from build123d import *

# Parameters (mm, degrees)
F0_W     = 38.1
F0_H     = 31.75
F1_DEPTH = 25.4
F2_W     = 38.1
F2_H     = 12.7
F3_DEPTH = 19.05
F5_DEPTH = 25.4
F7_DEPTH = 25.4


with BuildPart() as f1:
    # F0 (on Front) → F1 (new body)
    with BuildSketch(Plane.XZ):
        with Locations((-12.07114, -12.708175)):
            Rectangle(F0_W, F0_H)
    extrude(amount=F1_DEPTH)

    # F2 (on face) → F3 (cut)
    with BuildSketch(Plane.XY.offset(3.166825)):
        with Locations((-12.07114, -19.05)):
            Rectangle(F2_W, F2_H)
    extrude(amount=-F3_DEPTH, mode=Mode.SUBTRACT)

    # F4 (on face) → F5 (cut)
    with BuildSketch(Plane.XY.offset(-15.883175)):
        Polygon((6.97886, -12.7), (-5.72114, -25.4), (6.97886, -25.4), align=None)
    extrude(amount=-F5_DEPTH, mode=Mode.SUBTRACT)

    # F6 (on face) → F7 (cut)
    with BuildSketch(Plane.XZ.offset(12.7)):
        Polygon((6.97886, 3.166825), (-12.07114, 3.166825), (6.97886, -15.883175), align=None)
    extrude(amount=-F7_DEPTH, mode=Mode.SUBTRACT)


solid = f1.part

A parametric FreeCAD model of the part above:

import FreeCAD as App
import Part
import Sketcher
Q = App.Units.Quantity

doc = App.newDocument("Part")
body = doc.addObject("PartDesign::Body", "Body")

# Sketch on XZ plane
sketch1 = body.newObject("Sketcher::SketchObject", "Sketch")
sketch1.AttachmentSupport = (doc.getObject("XZ_Plane"), [""])
sketch1.MapMode = "FlatFace"
sketch1.addGeometry(Part.LineSegment(App.Vector(-31, 3, 0), App.Vector(-31, -29, 0)), False)
sketch1.addGeometry(Part.LineSegment(App.Vector(-31, -29, 0), App.Vector(7, -29, 0)), False)
sketch1.addGeometry(Part.LineSegment(App.Vector(7, -29, 0), App.Vector(7, 3, 0)), False)
sketch1.addGeometry(Part.LineSegment(App.Vector(7, 3, 0), App.Vector(-31, 3, 0)), False)
sketch1.addConstraint(Sketcher.Constraint("Coincident", 0, 2, 1, 1))
sketch1.addConstraint(Sketcher.Constraint("Coincident", 1, 2, 2, 1))
sketch1.addConstraint(Sketcher.Constraint("Coincident", 2, 2, 3, 1))
sketch1.addConstraint(Sketcher.Constraint("Coincident", 3, 2, 0, 1))
sketch1.addConstraint(Sketcher.Constraint("Vertical", 0))
sketch1.addConstraint(Sketcher.Constraint("Horizontal", 1))
sketch1.addConstraint(Sketcher.Constraint("Vertical", 2))
sketch1.addConstraint(Sketcher.Constraint("Horizontal", 3))
sketch1.addConstraint(Sketcher.Constraint("DistanceX", 1, 1, 1, 2, Q("1.5 in")))
sketch1.addConstraint(Sketcher.Constraint("DistanceY", 0, 2, 0, 1, Q("1.25 in")))
sketch1.addConstraint(Sketcher.Constraint("DistanceX", 0, 2, -1, 1, 31.12114))
sketch1.addConstraint(Sketcher.Constraint("DistanceY", 0, 2, -1, 1, 28.583175))
pad1 = body.newObject("PartDesign::Pad", "Pad")
pad1.Profile = sketch1
pad1.Length = Q("1 in")

# Sketch on XY plane
sketch2 = body.newObject("Sketcher::SketchObject", "Sketch001")
sketch2.AttachmentSupport = (doc.getObject("XY_Plane"), [""])
sketch2.MapMode = "FlatFace"
sketch2.AttachmentOffset = App.Placement(App.Vector(0, 0, 3.166825), App.Rotation())
sketch2.addGeometry(Part.LineSegment(App.Vector(-31, -13, 0), App.Vector(-31, -25, 0)), False)
sketch2.addGeometry(Part.LineSegment(App.Vector(-31, -25, 0), App.Vector(7, -25, 0)), False)
sketch2.addGeometry(Part.LineSegment(App.Vector(7, -25, 0), App.Vector(7, -13, 0)), False)
sketch2.addGeometry(Part.LineSegment(App.Vector(7, -13, 0), App.Vector(-31, -13, 0)), False)
sketch2.addConstraint(Sketcher.Constraint("Coincident", 0, 2, 1, 1))
sketch2.addConstraint(Sketcher.Constraint("Coincident", 1, 2, 2, 1))
sketch2.addConstraint(Sketcher.Constraint("Coincident", 2, 2, 3, 1))
sketch2.addConstraint(Sketcher.Constraint("Coincident", 3, 2, 0, 1))
sketch2.addConstraint(Sketcher.Constraint("Vertical", 0))
sketch2.addConstraint(Sketcher.Constraint("Horizontal", 1))
sketch2.addConstraint(Sketcher.Constraint("Vertical", 2))
sketch2.addConstraint(Sketcher.Constraint("Horizontal", 3))
sketch2.addConstraint(Sketcher.Constraint("DistanceX", 1, 1, 1, 2, Q("1.5 in")))
sketch2.addConstraint(Sketcher.Constraint("DistanceY", 0, 2, 0, 1, Q("0.5 in")))
sketch2.addConstraint(Sketcher.Constraint("DistanceY", 0, 2, -1, 1, Q("1 in")))
sketch2.addConstraint(Sketcher.Constraint("DistanceX", 0, 2, -1, 1, 31.12114))
pocket1 = body.newObject("PartDesign::Pocket", "Pocket")
pocket1.Profile = sketch2
pocket1.Length = Q("0.75 in")

# Sketch on XY plane
sketch3 = body.newObject("Sketcher::SketchObject", "Sketch002")
sketch3.AttachmentSupport = (doc.getObject("XY_Plane"), [""])
sketch3.MapMode = "FlatFace"
sketch3.AttachmentOffset = App.Placement(App.Vector(0, 0, -15.883175), App.Rotation())
sketch3.addGeometry(Part.LineSegment(App.Vector(7, -13, 0), App.Vector(-6, -25, 0)), False)
sketch3.addGeometry(Part.LineSegment(App.Vector(-6, -25, 0), App.Vector(7, -25, 0)), False)
sketch3.addGeometry(Part.LineSegment(App.Vector(7, -25, 0), App.Vector(7, -13, 0)), False)
sketch3.addConstraint(Sketcher.Constraint("Coincident", 0, 2, 1, 1))
sketch3.addConstraint(Sketcher.Constraint("Coincident", 1, 2, 2, 1))
sketch3.addConstraint(Sketcher.Constraint("Coincident", 2, 2, 0, 1))
sketch3.addConstraint(Sketcher.Constraint("Horizontal", 1))
sketch3.addConstraint(Sketcher.Constraint("Vertical", 2))
sketch3.addConstraint(Sketcher.Constraint("Equal", 1, 2))
sketch3.addConstraint(Sketcher.Constraint("DistanceX", 1, 1, 1, 2, Q("0.5 in")))
sketch3.addConstraint(Sketcher.Constraint("DistanceY", 0, 2, -1, 1, Q("1 in")))
sketch3.addConstraint(Sketcher.Constraint("DistanceX", 0, 2, -1, 1, 5.72114))
pocket2 = body.newObject("PartDesign::Pocket", "Pocket001")
pocket2.Profile = sketch3
pocket2.Length = Q("1 in")

# Sketch on XZ plane
sketch4 = body.newObject("Sketcher::SketchObject", "Sketch003")
sketch4.AttachmentSupport = (doc.getObject("XZ_Plane"), [""])
sketch4.MapMode = "FlatFace"
sketch4.AttachmentOffset = App.Placement(App.Vector(0, 0, 0.5 * 25.4), App.Rotation())
sketch4.addGeometry(Part.LineSegment(App.Vector(7, 3, 0), App.Vector(-12, 3, 0)), False)
sketch4.addGeometry(Part.LineSegment(App.Vector(-12, 3, 0), App.Vector(7, -16, 0)), False)
sketch4.addGeometry(Part.LineSegment(App.Vector(7, -16, 0), App.Vector(7, 3, 0)), False)
sketch4.addConstraint(Sketcher.Constraint("Coincident", 0, 2, 1, 1))
sketch4.addConstraint(Sketcher.Constraint("Coincident", 1, 2, 2, 1))
sketch4.addConstraint(Sketcher.Constraint("Coincident", 2, 2, 0, 1))
sketch4.addConstraint(Sketcher.Constraint("Horizontal", 0))
sketch4.addConstraint(Sketcher.Constraint("Vertical", 2))
sketch4.addConstraint(Sketcher.Constraint("Equal", 0, 2))
sketch4.addConstraint(Sketcher.Constraint("DistanceX", 0, 2, 0, 1, Q("0.75 in")))
sketch4.addConstraint(Sketcher.Constraint("DistanceX", 0, 2, -1, 1, 12.07114))
sketch4.addConstraint(Sketcher.Constraint("DistanceY", -1, 1, 0, 2, 3.166825))
pocket3 = body.newObject("PartDesign::Pocket", "Pocket002")
pocket3.Profile = sketch4
pocket3.Length = Q("1 in")

doc.recompute()
